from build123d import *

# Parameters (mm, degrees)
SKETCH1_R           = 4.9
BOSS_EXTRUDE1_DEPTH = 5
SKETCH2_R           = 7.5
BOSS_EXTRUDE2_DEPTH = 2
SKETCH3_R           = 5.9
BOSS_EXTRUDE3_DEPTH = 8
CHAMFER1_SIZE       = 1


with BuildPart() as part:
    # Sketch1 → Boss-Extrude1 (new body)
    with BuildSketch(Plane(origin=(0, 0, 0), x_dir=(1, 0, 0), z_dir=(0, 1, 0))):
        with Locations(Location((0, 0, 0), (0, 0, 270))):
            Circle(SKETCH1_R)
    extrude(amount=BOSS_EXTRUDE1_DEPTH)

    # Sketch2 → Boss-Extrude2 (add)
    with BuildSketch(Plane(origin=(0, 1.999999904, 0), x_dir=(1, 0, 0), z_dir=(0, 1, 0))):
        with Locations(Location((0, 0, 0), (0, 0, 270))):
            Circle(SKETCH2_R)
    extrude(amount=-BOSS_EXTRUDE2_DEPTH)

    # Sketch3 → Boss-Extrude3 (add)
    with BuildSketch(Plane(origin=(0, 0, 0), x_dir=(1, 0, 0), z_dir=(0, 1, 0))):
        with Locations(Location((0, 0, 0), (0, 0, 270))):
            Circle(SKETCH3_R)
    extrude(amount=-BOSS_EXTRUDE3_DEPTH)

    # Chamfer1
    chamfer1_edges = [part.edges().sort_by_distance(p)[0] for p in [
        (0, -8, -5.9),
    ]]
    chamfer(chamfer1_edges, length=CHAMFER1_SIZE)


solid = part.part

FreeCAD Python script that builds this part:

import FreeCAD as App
import Part
import Sketcher

V = App.Vector


def edges_at(feature, points):
    """Names of the edges that pass closest to the given points."""
    edges = feature.Shape.Edges
    near = lambda p: min(range(len(edges)), key=lambda i: edges[i].distToShape(Part.Vertex(*p))[0])
    return sorted({f"Edge{near(p) + 1}" for p in points})

doc = App.newDocument("Part")
body = doc.addObject("PartDesign::Body", "Body")

# Sketch on XZ plane
sketch1 = body.newObject("Sketcher::SketchObject", "Sketch")
sketch1.AttachmentSupport = (doc.getObject("XZ_Plane"), [""])
sketch1.MapMode = "FlatFace"
sketch1.addGeometry(Part.Circle(V(0, 0, 0), V(0, 0, 1), 4.9), False)
sketch1.addConstraint([
    Sketcher.Constraint("Coincident", 0, 3, -1, 1),
    Sketcher.Constraint("Diameter", 0, 9.8),
])
pad1 = body.newObject("PartDesign::Pad", "Pad")
pad1.Profile = sketch1
pad1.Length = 5
pad1.Reversed = True

# Sketch on XZ plane
sketch2 = body.newObject("Sketcher::SketchObject", "Sketch001")
sketch2.AttachmentSupport = (doc.getObject("XZ_Plane"), [""])
sketch2.MapMode = "FlatFace"
sketch2.AttachmentOffset = App.Placement(V(0, 0, -2), App.Rotation())
sketch2.addGeometry(Part.Circle(V(0, 0, 0), V(0, 0, 1), 7.5), False)
sketch2.addConstraint([
    Sketcher.Constraint("Coincident", 0, 3, -1, 1),
    Sketcher.Constraint("Diameter", 0, 15.0),
])
pad2 = body.newObject("PartDesign::Pad", "Pad001")
pad2.Profile = sketch2
pad2.Length = 2

# Sketch on XZ plane
sketch3 = body.newObject("Sketcher::SketchObject", "Sketch002")
sketch3.AttachmentSupport = (doc.getObject("XZ_Plane"), [""])
sketch3.MapMode = "FlatFace"
sketch3.addGeometry(Part.Circle(V(0, 0, 0), V(0, 0, 1), 5.9), False)
sketch3.addConstraint([
    Sketcher.Constraint("Coincident", 0, 3, -1, 1),
    Sketcher.Constraint("Diameter", 0, 11.8),
])
pad3 = body.newObject("PartDesign::Pad", "Pad002")
pad3.Profile = sketch3
pad3.Length = 8
doc.recompute()

chamfer = body.newObject("PartDesign::Chamfer", "Chamfer")
chamfer.Base = (pad3, edges_at(pad3, [(0, -8, -5.9)]))
chamfer.Size = 1

doc.recompute()
